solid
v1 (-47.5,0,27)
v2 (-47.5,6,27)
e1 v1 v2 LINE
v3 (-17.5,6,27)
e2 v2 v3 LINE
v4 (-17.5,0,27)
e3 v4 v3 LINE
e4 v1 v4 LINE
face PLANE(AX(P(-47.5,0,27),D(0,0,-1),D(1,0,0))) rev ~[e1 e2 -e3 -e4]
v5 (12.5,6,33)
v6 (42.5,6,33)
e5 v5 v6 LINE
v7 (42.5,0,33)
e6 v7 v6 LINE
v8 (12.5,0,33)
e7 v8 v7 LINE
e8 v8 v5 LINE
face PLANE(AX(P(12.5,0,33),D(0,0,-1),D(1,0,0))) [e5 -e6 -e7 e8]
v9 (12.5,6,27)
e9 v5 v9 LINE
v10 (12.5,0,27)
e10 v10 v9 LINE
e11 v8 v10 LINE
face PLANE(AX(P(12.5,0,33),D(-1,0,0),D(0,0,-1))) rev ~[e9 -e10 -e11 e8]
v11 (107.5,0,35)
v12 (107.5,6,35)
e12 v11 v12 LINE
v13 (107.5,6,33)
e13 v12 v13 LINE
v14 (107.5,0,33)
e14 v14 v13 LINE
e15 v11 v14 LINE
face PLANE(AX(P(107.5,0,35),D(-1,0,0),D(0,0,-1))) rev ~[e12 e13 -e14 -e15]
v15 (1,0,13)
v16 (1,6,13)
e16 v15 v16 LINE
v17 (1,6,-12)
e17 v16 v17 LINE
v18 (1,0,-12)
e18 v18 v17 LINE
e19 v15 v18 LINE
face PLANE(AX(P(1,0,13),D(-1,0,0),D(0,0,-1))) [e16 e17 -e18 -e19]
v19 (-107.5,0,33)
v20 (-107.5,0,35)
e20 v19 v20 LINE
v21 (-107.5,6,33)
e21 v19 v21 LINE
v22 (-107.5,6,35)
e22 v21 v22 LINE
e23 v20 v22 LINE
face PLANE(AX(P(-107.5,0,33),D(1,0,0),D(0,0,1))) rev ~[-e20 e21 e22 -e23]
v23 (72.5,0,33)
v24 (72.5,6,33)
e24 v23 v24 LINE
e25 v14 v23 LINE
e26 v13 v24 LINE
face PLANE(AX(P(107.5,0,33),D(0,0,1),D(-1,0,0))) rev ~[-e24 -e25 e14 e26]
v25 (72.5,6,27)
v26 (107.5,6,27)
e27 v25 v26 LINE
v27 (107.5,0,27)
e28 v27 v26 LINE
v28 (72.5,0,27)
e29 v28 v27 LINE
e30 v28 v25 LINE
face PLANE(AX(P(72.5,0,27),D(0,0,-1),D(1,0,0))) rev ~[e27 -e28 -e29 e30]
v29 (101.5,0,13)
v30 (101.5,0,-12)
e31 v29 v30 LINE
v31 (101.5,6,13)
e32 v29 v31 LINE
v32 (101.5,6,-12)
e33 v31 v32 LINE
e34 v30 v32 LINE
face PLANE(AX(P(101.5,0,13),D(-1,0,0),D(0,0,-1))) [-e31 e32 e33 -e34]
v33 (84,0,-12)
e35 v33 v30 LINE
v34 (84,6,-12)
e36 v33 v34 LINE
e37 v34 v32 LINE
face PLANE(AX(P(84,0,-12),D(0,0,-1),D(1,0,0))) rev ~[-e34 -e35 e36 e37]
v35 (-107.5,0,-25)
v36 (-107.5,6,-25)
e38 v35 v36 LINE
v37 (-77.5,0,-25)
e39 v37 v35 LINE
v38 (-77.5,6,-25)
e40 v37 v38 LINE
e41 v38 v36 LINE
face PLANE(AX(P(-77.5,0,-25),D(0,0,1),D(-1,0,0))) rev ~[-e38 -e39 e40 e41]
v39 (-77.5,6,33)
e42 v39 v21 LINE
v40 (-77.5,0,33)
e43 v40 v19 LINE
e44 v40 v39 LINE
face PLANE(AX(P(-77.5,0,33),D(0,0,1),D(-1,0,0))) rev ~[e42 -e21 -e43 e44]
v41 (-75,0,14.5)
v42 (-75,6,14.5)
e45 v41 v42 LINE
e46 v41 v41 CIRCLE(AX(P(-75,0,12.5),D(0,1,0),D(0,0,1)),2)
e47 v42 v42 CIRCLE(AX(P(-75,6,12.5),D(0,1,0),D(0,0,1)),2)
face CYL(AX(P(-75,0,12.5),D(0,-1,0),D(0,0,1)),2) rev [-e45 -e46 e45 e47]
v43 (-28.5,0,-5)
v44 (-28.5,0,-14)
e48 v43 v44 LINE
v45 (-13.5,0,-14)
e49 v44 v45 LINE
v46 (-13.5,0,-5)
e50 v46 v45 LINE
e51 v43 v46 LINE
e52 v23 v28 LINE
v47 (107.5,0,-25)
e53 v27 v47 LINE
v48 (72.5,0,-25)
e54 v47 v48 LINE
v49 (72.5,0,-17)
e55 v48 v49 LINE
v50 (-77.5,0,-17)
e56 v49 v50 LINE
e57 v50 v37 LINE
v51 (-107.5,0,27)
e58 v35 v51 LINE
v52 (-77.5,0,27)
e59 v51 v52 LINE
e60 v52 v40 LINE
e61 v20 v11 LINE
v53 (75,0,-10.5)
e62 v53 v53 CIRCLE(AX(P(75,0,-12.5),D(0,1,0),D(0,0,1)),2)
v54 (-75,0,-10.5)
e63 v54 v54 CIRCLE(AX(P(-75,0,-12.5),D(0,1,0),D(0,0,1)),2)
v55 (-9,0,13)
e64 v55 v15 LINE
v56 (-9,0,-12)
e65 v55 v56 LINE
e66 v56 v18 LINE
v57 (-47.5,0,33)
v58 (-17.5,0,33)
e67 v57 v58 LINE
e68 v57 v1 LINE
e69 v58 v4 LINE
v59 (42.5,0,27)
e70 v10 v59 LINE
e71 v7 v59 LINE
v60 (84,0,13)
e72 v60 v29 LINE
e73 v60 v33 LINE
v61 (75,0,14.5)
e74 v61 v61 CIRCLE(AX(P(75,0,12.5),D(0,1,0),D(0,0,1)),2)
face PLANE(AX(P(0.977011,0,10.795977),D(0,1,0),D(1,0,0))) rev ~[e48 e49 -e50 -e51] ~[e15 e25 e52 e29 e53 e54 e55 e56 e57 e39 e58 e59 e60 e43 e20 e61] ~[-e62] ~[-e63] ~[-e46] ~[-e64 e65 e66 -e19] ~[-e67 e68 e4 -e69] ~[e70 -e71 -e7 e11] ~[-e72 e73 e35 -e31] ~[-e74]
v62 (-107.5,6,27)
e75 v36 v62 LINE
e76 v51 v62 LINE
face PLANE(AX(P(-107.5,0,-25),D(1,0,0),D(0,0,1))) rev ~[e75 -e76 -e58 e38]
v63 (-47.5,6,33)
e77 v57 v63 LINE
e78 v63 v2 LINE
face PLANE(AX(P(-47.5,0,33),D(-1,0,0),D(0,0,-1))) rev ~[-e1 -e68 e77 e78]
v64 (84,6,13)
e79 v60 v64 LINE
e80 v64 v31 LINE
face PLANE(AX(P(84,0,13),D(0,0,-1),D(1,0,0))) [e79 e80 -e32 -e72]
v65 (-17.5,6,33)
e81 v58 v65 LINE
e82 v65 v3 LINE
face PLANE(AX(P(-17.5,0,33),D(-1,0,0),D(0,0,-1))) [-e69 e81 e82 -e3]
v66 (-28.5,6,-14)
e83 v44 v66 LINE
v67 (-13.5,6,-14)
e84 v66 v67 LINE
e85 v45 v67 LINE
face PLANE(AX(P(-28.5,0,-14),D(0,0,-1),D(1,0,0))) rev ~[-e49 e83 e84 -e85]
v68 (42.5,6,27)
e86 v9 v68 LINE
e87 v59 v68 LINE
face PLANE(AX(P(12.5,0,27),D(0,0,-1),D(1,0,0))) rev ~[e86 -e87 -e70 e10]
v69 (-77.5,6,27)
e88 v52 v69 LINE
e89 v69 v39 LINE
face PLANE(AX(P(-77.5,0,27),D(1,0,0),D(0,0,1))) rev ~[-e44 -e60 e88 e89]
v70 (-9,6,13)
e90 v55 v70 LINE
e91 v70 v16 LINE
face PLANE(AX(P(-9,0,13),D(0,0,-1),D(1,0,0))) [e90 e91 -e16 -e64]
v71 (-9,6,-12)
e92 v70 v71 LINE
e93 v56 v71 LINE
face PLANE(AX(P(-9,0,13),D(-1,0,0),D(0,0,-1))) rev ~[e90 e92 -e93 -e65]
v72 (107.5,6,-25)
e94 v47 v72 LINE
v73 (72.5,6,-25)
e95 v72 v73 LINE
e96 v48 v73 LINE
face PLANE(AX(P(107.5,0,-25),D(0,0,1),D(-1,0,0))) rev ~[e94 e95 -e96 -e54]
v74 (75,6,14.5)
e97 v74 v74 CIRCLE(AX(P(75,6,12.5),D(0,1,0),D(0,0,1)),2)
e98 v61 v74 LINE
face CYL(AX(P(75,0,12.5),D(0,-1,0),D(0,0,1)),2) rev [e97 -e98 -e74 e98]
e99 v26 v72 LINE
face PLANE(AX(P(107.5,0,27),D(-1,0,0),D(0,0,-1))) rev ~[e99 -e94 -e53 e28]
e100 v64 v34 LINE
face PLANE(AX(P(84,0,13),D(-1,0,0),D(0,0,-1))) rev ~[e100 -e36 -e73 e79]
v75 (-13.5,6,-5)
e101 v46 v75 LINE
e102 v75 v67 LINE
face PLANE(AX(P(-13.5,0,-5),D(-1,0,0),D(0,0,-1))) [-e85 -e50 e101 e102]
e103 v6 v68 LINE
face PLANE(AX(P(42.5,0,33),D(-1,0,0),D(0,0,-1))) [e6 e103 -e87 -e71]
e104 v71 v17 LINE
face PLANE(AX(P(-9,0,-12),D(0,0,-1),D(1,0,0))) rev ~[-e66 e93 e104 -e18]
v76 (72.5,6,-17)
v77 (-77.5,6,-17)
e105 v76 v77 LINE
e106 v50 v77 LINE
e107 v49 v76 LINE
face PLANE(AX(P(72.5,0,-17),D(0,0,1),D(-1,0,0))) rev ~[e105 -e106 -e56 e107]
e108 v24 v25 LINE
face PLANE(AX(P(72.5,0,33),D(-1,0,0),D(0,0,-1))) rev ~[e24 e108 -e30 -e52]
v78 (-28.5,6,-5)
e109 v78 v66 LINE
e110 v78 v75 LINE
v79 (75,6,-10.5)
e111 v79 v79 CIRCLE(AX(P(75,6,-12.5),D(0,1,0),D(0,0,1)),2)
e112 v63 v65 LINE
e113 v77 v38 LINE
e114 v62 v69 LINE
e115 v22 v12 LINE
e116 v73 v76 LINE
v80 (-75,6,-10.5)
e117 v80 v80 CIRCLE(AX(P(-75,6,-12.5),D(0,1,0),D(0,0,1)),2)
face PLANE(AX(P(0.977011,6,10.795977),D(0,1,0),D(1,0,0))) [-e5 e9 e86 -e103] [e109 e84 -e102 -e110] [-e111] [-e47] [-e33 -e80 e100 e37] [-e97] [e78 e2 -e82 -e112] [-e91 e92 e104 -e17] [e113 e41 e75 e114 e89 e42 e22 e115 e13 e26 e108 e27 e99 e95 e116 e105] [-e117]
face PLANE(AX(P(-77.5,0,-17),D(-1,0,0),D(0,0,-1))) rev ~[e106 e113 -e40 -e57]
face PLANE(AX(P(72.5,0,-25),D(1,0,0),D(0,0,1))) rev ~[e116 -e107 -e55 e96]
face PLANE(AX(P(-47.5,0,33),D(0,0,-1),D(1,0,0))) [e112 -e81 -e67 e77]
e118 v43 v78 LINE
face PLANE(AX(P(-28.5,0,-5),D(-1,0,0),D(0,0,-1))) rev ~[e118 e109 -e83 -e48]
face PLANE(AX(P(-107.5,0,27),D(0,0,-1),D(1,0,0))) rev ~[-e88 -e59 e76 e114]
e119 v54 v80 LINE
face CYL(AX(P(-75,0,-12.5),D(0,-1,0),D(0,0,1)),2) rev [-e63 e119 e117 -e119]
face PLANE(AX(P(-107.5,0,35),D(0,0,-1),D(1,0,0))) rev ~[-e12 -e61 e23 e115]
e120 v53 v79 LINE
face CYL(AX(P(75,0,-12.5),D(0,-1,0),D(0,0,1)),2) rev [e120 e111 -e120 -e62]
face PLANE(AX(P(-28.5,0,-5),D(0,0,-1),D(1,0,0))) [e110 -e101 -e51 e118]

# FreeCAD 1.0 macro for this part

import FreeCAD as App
import Part
import Sketcher

V = App.Vector

doc = App.newDocument("Part")
body = doc.addObject("PartDesign::Body", "Body")

sketch1 = body.newObject("Sketcher::SketchObject", "Sketch")
sketch1.AttachmentSupport = (doc.getObject("XZ_Plane"), [""])
sketch1.MapMode = "FlatFace"
sketch1.addGeometry([
    Part.LineSegment(V(-77.5, -25, 0), V(-107.5, -25, 0)),
    Part.LineSegment(V(-107.5, -25, 0), V(-107.5, 27, 0)),
    Part.LineSegment(V(-107.5, 27, 0), V(-77.5, 27, 0)),
    Part.LineSegment(V(-77.5, 27, 0), V(-77.5, 33, 0)),
    Part.LineSegment(V(-77.5, 33, 0), V(-107.5, 33, 0)),
    Part.LineSegment(V(-107.5, 33, 0), V(-107.5, 35, 0)),
    Part.LineSegment(V(-107.5, 35, 0), V(107.5, 35, 0)),
    Part.LineSegment(V(107.5, 35, 0), V(107.5, 33, 0)),
    Part.LineSegment(V(107.5, 33, 0), V(72.5, 33, 0)),
    Part.LineSegment(V(72.5, 33, 0), V(72.5, 27, 0)),
    Part.LineSegment(V(72.5, 27, 0), V(107.5, 27, 0)),
    Part.LineSegment(V(107.5, 27, 0), V(107.5, -25, 0)),
    Part.LineSegment(V(107.5, -25, 0), V(72.5, -25, 0)),
    Part.LineSegment(V(72.5, -25, 0), V(72.5, -17, 0)),
    Part.LineSegment(V(72.5, -17, 0), V(-77.5, -17, 0)),
    Part.LineSegment(V(-77.5, -17, 0), V(-77.5, -25, 0)),
    Part.LineSegment(V(-17.5, 33, 0), V(-47.5, 33, 0)),
    Part.LineSegment(V(-47.5, 33, 0), V(-47.5, 27, 0)),
    Part.LineSegment(V(-47.5, 27, 0), V(-17.5, 27, 0)),
    Part.LineSegment(V(-17.5, 27, 0), V(-17.5, 33, 0)),
    Part.Circle(V(-75, 12.5, 0), V(0, 0, 1), 2),
    Part.LineSegment(V(42.5, 33, 0), V(12.5, 33, 0)),
    Part.LineSegment(V(12.5, 33, 0), V(12.5, 27, 0)),
    Part.LineSegment(V(12.5, 27, 0), V(42.5, 27, 0)),
    Part.LineSegment(V(42.5, 27, 0), V(42.5, 33, 0)),
    Part.Circle(V(75, 12.5, 0), V(0, 0, 1), 2),
    Part.LineSegment(V(1, 13, 0), V(-9, 13, 0)),
    Part.LineSegment(V(-9, 13, 0), V(-9, -12, 0)),
    Part.LineSegment(V(-9, -12, 0), V(1, -12, 0)),
    Part.LineSegment(V(1, -12, 0), V(1, 13, 0)),
    Part.Circle(V(-75, -12.5, 0), V(0, 0, 1), 2),
    Part.LineSegment(V(-13.5, -5, 0), V(-28.5, -5, 0)),
    Part.LineSegment(V(-28.5, -5, 0), V(-28.5, -14, 0)),
    Part.LineSegment(V(-28.5, -14, 0), V(-13.5, -14, 0)),
    Part.LineSegment(V(-13.5, -14, 0), V(-13.5, -5, 0)),
    Part.LineSegment(V(101.5, 13, 0), V(84, 13, 0)),
    Part.LineSegment(V(84, 13, 0), V(84, -12, 0)),
    Part.LineSegment(V(84, -12, 0), V(101.5, -12, 0)),
    Part.LineSegment(V(101.5, -12, 0), V(101.5, 13, 0)),
    Part.Circle(V(75, -12.5, 0), V(0, 0, 1), 2),
], False)
sketch1.addConstraint([
    Sketcher.Constraint("Coincident", 0, 2, 1, 1),
    Sketcher.Constraint("Coincident", 1, 2, 2, 1),
    Sketcher.Constraint("Coincident", 2, 2, 3, 1),
    Sketcher.Constraint("Coincident", 3, 2, 4, 1),
    Sketcher.Constraint("Coincident", 4, 2, 5, 1),
    Sketcher.Constraint("Coincident", 5, 2, 6, 1),
    Sketcher.Constraint("Coincident", 6, 2, 7, 1),
    Sketcher.Constraint("Coincident", 7, 2, 8, 1),
    Sketcher.Constraint("Coincident", 8, 2, 9, 1),
    Sketcher.Constraint("Coincident", 9, 2, 10, 1),
    Sketcher.Constraint("Coincident", 10, 2, 11, 1),
    Sketcher.Constraint("Coincident", 11, 2, 12, 1),
    Sketcher.Constraint("Coincident", 12, 2, 13, 1),
    Sketcher.Constraint("Coincident", 13, 2, 14, 1),
    Sketcher.Constraint("Coincident", 14, 2, 15, 1),
    Sketcher.Constraint("Coincident", 15, 2, 0, 1),
    Sketcher.Constraint("Coincident", 16, 2, 17, 1),
    Sketcher.Constraint("Coincident", 17, 2, 18, 1),
    Sketcher.Constraint("Coincident", 18, 2, 19, 1),
    Sketcher.Constraint("Coincident", 19, 2, 16, 1),
    Sketcher.Constraint("Coincident", 21, 2, 22, 1),
    Sketcher.Constraint("Coincident", 22, 2, 23, 1),
    Sketcher.Constraint("Coincident", 23, 2, 24, 1),
    Sketcher.Constraint("Coincident", 24, 2, 21, 1),
    Sketcher.Constraint("Coincident", 26, 2, 27, 1),
    Sketcher.Constraint("Coincident", 27, 2, 28, 1),
    Sketcher.Constraint("Coincident", 28, 2, 29, 1),
    Sketcher.Constraint("Coincident", 29, 2, 26, 1),
    Sketcher.Constraint("Coincident", 31, 2, 32, 1),
    Sketcher.Constraint("Coincident", 32, 2, 33, 1),
    Sketcher.Constraint("Coincident", 33, 2, 34, 1),
    Sketcher.Constraint("Coincident", 34, 2, 31, 1),
    Sketcher.Constraint("Coincident", 35, 2, 36, 1),
    Sketcher.Constraint("Coincident", 36, 2, 37, 1),
    Sketcher.Constraint("Coincident", 37, 2, 38, 1),
    Sketcher.Constraint("Coincident", 38, 2, 35, 1),
    Sketcher.Constraint("Horizontal", 0),
    Sketcher.Constraint("Vertical", 1),
    Sketcher.Constraint("Horizontal", 2),
    Sketcher.Constraint("Vertical", 3),
    Sketcher.Constraint("Horizontal", 4),
    Sketcher.Constraint("Vertical", 5),
    Sketcher.Constraint("Horizontal", 6),
    Sketcher.Constraint("Vertical", 7),
    Sketcher.Constraint("Horizontal", 8),
    Sketcher.Constraint("Vertical", 9),
    Sketcher.Constraint("Horizontal", 10),
    Sketcher.Constraint("Vertical", 11),
    Sketcher.Constraint("Horizontal", 12),
    Sketcher.Constraint("Vertical", 13),
    Sketcher.Constraint("Horizontal", 14),
    Sketcher.Constraint("Vertical", 15),
    Sketcher.Constraint("Horizontal", 16),
    Sketcher.Constraint("Vertical", 17),
    Sketcher.Constraint("Horizontal", 18),
    Sketcher.Constraint("Vertical", 19),
    Sketcher.Constraint("Horizontal", 21),
    Sketcher.Constraint("Vertical", 22),
    Sketcher.Constraint("Horizontal", 23),
    Sketcher.Constraint("Vertical", 24),
    Sketcher.Constraint("Horizontal", 26),
    Sketcher.Constraint("Vertical", 27),
    Sketcher.Constraint("Horizontal", 28),
    Sketcher.Constraint("Vertical", 29),
    Sketcher.Constraint("Horizontal", 31),
    Sketcher.Constraint("Vertical", 32),
    Sketcher.Constraint("Horizontal", 33),
    Sketcher.Constraint("Vertical", 34),
    Sketcher.Constraint("Horizontal", 35),
    Sketcher.Constraint("Vertical", 36),
    Sketcher.Constraint("Horizontal", 37),
    Sketcher.Constraint("Vertical", 38),
    Sketcher.Constraint("Equal", 20, 25),
    Sketcher.Constraint("Equal", 25, 30),
    Sketcher.Constraint("Equal", 30, 39),
    Sketcher.Constraint("Symmetric", 25, 3, 30, 3, -1, 1),
    Sketcher.Constraint("Symmetric", 20, 3, 39, 3, -1, 1),
    Sketcher.Constraint("Symmetric", 20, 3, 25, 3, -2),
    Sketcher.Constraint("Symmetric", 4, 2, 7, 2, -2),
    Sketcher.Constraint("Symmetric", 1, 2, 10, 2, -2),
    Sketcher.Constraint("Horizontal", 0, 2, 11, 2),
    Sketcher.Constraint("Horizontal", 8, 2, 16, 2),
    Sketcher.Constraint("Horizontal", 10, 2, 17, 2),
    Sketcher.Constraint("Horizontal", 19, 2, 21, 2),
    Sketcher.Constraint("Horizontal", 18, 2, 22, 2),
    Sketcher.Constraint("Horizontal", 29, 2, 35, 2),
    Sketcher.Constraint("Horizontal", 28, 2, 36, 2),
    Sketcher.Constraint("Vertical", 1, 2, 4, 2),
    Sketcher.Constraint("Vertical", 9, 2, 12, 2),
    Sketcher.Constraint("Vertical", 3, 2, 14, 2),
    Sketcher.Constraint("Equal", 4, 16),
    Sketcher.Constraint("Equal", 18, 21),
    Sketcher.Constraint("Diameter", 20, 4.0),
    Sketcher.Constraint("DistanceX", 0, 2, 0, 1, 30.0),
    Sketcher.Constraint("DistanceX", 6, 1, 6, 2, 215.0),
    Sketcher.Constraint("DistanceX", 8, 2, 8, 1, 35.0),
    Sketcher.Constraint("DistanceX", 26, 2, 26, 1, 10.0),
    Sketcher.Constraint("DistanceX", 31, 2, 31, 1, 15.0),
    Sketcher.Constraint("DistanceY", 1, 1, 1, 2, 52.0),
    Sketcher.Constraint("DistanceY", 3, 1, 3, 2, 6.0),
    Sketcher.Constraint("DistanceY", 5, 1, 5, 2, 2.0),
    Sketcher.Constraint("DistanceY", 13, 1, 13, 2, 8.0),
    Sketcher.Constraint("DistanceY", 27, 2, 27, 1, 25.0),
    Sketcher.Constraint("DistanceY", 32, 2, 32, 1, 9.0),
    Sketcher.Constraint("DistanceX", 35, 2, 35, 1, 17.5),
    Sketcher.Constraint("DistanceX", 20, 3, -1, 1, 75.0),
    Sketcher.Constraint("DistanceY", 0, 2, -1, 1, 25.0),
    Sketcher.Constraint("DistanceX", 26, 2, -1, 1, 9.0),
    Sketcher.Constraint("DistanceY", -1, 1, 26, 2, 13.0),
    Sketcher.Constraint("DistanceY", 31, 2, -1, 1, 5.0),
    Sketcher.Constraint("DistanceX", -1, 1, 35, 2, 84.0),
    Sketcher.Constraint("DistanceY", 30, 3, 20, 3, 25.0),
    Sketcher.Constraint("DistanceX", 3, 2, 16, 2, 30.0),
    Sketcher.Constraint("DistanceX", 19, 2, 21, 2, 30.0),
    Sketcher.Constraint("DistanceX", 31, 2, 18, 2, 11.0),
])
pad1 = body.newObject("PartDesign::Pad", "Pad")
pad1.Profile = sketch1
pad1.Length = 6
pad1.Reversed = True

doc.recompute()
